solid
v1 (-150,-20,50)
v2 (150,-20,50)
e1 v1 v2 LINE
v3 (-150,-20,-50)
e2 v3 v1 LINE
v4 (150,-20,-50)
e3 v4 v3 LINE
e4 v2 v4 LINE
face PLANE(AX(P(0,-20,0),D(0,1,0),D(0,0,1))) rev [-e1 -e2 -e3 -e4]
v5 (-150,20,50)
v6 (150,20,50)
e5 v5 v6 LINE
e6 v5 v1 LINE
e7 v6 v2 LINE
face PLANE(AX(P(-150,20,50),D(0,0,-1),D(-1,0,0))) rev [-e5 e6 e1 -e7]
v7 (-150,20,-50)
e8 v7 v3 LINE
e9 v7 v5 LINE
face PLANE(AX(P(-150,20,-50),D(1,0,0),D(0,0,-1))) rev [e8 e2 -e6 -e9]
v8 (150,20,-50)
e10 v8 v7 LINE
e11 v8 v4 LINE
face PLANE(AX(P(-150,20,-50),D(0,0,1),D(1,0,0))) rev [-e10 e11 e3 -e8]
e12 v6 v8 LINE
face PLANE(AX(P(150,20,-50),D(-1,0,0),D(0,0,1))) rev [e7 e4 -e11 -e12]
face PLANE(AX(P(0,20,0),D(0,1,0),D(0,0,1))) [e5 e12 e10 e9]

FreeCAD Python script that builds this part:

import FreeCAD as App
import Part
import Sketcher

V = App.Vector
Q = App.Units.Quantity

doc = App.newDocument("Part")
params = doc.addObject("Spreadsheet::Sheet", "Params")
for row, (alias, value) in enumerate([
    ("sketch1_width", "300 mm"),
    ("sketch1_height", "100 mm"),
    ("pad1_length", "40 mm"),
], start=1):
    params.set(f"A{row}", alias)
    params.set(f"B{row}", "=" + value)
    params.setAlias(f"B{row}", alias)

body = doc.addObject("PartDesign::Body", "Body")

# Sketch on XZ plane
sketch1 = body.newObject("Sketcher::SketchObject", "Sketch")
sketch1.AttachmentSupport = (doc.getObject("XZ_Plane"), [""])
sketch1.MapMode = "FlatFace"
sketch1.addGeometry([
    Part.LineSegment(V(-150, -50, 0), V(-150, 50, 0)),
    Part.LineSegment(V(-150, 50, 0), V(150, 50, 0)),
    Part.LineSegment(V(150, 50, 0), V(150, -50, 0)),
    Part.LineSegment(V(150, -50, 0), V(-150, -50, 0)),
], False)
sketch1.addConstraint([
    Sketcher.Constraint("Coincident", 0, 2, 1, 1),
    Sketcher.Constraint("Coincident", 1, 2, 2, 1),
    Sketcher.Constraint("Coincident", 2, 2, 3, 1),
    Sketcher.Constraint("Coincident", 3, 2, 0, 1),
    Sketcher.Constraint("Vertical", 0),
    Sketcher.Constraint("Horizontal", 1),
    Sketcher.Constraint("Vertical", 2),
    Sketcher.Constraint("Horizontal", 3),
    Sketcher.Constraint("Symmetric", 0, 2, 2, 2, -1, 1),
    Sketcher.Constraint("DistanceX", 1, 1, 1, 2, Q("300 mm")),
    Sketcher.Constraint("DistanceY", 0, 1, 0, 2, Q("100 mm")),
])
sketch1.setExpression("Constraints[9]", "Params.sketch1_width")
sketch1.setExpression("Constraints[10]", "Params.sketch1_height")
pad1 = body.newObject("PartDesign::Pad", "Pad")
pad1.Profile = sketch1
pad1.setExpression("Length", "Params.pad1_length")
pad1.Midplane = True

doc.recompute()
